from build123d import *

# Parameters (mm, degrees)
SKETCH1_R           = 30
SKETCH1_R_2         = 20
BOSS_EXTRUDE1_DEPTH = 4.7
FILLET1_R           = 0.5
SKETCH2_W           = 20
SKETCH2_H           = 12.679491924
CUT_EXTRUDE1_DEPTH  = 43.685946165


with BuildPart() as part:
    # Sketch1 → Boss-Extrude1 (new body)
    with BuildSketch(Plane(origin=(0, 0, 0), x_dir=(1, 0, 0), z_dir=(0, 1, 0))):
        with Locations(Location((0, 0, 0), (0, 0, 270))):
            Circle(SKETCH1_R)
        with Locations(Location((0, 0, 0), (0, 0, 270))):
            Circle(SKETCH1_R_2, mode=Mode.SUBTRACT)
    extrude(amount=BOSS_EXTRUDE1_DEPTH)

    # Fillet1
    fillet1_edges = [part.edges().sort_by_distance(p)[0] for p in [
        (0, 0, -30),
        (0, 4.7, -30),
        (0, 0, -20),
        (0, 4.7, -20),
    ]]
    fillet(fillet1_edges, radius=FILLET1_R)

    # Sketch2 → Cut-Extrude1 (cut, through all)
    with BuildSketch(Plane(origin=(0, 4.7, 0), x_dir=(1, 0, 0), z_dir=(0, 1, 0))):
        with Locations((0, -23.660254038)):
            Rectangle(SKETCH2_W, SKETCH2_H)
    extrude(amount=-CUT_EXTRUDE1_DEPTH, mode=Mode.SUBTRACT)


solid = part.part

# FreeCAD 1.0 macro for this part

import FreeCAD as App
import Part
import Sketcher

V = App.Vector


def edges_at(feature, points):
    """Names of the edges that pass closest to the given points."""
    edges = feature.Shape.Edges
    near = lambda p: min(range(len(edges)), key=lambda i: edges[i].distToShape(Part.Vertex(*p))[0])
    return sorted({f"Edge{near(p) + 1}" for p in points})


def add_polygon(sketch, points):
    """Adds a closed chain of lines whose ends are joined by coincident constraints."""
    first, n = sketch.GeometryCount, len(points)
    for a, b in zip(points, points[1:] + points[:1]):
        sketch.addGeometry(Part.LineSegment(App.Vector(*a, 0), App.Vector(*b, 0)), False)
    for i in range(n):
        sketch.addConstraint(Sketcher.Constraint("Coincident", first + i, 2, first + (i + 1) % n, 1))

doc = App.newDocument("Part")
body = doc.addObject("PartDesign::Body", "Body")

# Sketch on XZ plane
sketch1 = body.newObject("Sketcher::SketchObject", "Sketch")
sketch1.AttachmentSupport = (doc.getObject("XZ_Plane"), [""])
sketch1.MapMode = "FlatFace"
sketch1.addGeometry([
    Part.Circle(V(0, 0, 0), V(0, 0, 1), 30),
    Part.Circle(V(0, 0, 0), V(0, 0, 1), 20),
], False)
sketch1.addConstraint([
    Sketcher.Constraint("Coincident", 0, 3, -1, 1),
    Sketcher.Constraint("Coincident", 1, 3, -1, 1),
    Sketcher.Constraint("Diameter", 0, 60.0),
    Sketcher.Constraint("Diameter", 1, 40.0),
])
pad1 = body.newObject("PartDesign::Pad", "Pad")
pad1.Profile = sketch1
pad1.Length = 4.7
pad1.Reversed = True
doc.recompute()

fillet = body.newObject("PartDesign::Fillet", "Fillet")
fillet.Base = (pad1, edges_at(pad1, [
    (0, 0, -30),
    (0, 4.7, -30),
    (0, 0, -20),
    (0, 4.7, -20),
]))
fillet.Radius = 0.5

# Sketch on XZ plane
sketch2 = body.newObject("Sketcher::SketchObject", "Sketch001")
sketch2.AttachmentSupport = (doc.getObject("XZ_Plane"), [""])
sketch2.MapMode = "FlatFace"
sketch2.AttachmentOffset = App.Placement(V(0, 0, -4.7), App.Rotation())
add_polygon(sketch2, [(-10, 17.320508), (-10, 30), (10, 30), (10, 17.320508)])  # lines 0-3
sketch2.addConstraint([
    Sketcher.Constraint("Vertical", 0),
    Sketcher.Constraint("Horizontal", 1),
    Sketcher.Constraint("Vertical", 2),
    Sketcher.Constraint("Horizontal", 3),
    Sketcher.Constraint("DistanceX", 1, 1, 1, 2, 20.0),
    Sketcher.Constraint("DistanceX", 0, 2, -1, 1, 10.0),
    Sketcher.Constraint("DistanceY", -1, 1, 0, 2, 30.0),
    Sketcher.Constraint("DistanceY", 0, 1, 0, 2, 12.679492),
])
pocket1 = body.newObject("PartDesign::Pocket", "Pocket")
pocket1.Profile = sketch2
pocket1.Type = "ThroughAll"
pocket1.Reversed = True

doc.recompute()
